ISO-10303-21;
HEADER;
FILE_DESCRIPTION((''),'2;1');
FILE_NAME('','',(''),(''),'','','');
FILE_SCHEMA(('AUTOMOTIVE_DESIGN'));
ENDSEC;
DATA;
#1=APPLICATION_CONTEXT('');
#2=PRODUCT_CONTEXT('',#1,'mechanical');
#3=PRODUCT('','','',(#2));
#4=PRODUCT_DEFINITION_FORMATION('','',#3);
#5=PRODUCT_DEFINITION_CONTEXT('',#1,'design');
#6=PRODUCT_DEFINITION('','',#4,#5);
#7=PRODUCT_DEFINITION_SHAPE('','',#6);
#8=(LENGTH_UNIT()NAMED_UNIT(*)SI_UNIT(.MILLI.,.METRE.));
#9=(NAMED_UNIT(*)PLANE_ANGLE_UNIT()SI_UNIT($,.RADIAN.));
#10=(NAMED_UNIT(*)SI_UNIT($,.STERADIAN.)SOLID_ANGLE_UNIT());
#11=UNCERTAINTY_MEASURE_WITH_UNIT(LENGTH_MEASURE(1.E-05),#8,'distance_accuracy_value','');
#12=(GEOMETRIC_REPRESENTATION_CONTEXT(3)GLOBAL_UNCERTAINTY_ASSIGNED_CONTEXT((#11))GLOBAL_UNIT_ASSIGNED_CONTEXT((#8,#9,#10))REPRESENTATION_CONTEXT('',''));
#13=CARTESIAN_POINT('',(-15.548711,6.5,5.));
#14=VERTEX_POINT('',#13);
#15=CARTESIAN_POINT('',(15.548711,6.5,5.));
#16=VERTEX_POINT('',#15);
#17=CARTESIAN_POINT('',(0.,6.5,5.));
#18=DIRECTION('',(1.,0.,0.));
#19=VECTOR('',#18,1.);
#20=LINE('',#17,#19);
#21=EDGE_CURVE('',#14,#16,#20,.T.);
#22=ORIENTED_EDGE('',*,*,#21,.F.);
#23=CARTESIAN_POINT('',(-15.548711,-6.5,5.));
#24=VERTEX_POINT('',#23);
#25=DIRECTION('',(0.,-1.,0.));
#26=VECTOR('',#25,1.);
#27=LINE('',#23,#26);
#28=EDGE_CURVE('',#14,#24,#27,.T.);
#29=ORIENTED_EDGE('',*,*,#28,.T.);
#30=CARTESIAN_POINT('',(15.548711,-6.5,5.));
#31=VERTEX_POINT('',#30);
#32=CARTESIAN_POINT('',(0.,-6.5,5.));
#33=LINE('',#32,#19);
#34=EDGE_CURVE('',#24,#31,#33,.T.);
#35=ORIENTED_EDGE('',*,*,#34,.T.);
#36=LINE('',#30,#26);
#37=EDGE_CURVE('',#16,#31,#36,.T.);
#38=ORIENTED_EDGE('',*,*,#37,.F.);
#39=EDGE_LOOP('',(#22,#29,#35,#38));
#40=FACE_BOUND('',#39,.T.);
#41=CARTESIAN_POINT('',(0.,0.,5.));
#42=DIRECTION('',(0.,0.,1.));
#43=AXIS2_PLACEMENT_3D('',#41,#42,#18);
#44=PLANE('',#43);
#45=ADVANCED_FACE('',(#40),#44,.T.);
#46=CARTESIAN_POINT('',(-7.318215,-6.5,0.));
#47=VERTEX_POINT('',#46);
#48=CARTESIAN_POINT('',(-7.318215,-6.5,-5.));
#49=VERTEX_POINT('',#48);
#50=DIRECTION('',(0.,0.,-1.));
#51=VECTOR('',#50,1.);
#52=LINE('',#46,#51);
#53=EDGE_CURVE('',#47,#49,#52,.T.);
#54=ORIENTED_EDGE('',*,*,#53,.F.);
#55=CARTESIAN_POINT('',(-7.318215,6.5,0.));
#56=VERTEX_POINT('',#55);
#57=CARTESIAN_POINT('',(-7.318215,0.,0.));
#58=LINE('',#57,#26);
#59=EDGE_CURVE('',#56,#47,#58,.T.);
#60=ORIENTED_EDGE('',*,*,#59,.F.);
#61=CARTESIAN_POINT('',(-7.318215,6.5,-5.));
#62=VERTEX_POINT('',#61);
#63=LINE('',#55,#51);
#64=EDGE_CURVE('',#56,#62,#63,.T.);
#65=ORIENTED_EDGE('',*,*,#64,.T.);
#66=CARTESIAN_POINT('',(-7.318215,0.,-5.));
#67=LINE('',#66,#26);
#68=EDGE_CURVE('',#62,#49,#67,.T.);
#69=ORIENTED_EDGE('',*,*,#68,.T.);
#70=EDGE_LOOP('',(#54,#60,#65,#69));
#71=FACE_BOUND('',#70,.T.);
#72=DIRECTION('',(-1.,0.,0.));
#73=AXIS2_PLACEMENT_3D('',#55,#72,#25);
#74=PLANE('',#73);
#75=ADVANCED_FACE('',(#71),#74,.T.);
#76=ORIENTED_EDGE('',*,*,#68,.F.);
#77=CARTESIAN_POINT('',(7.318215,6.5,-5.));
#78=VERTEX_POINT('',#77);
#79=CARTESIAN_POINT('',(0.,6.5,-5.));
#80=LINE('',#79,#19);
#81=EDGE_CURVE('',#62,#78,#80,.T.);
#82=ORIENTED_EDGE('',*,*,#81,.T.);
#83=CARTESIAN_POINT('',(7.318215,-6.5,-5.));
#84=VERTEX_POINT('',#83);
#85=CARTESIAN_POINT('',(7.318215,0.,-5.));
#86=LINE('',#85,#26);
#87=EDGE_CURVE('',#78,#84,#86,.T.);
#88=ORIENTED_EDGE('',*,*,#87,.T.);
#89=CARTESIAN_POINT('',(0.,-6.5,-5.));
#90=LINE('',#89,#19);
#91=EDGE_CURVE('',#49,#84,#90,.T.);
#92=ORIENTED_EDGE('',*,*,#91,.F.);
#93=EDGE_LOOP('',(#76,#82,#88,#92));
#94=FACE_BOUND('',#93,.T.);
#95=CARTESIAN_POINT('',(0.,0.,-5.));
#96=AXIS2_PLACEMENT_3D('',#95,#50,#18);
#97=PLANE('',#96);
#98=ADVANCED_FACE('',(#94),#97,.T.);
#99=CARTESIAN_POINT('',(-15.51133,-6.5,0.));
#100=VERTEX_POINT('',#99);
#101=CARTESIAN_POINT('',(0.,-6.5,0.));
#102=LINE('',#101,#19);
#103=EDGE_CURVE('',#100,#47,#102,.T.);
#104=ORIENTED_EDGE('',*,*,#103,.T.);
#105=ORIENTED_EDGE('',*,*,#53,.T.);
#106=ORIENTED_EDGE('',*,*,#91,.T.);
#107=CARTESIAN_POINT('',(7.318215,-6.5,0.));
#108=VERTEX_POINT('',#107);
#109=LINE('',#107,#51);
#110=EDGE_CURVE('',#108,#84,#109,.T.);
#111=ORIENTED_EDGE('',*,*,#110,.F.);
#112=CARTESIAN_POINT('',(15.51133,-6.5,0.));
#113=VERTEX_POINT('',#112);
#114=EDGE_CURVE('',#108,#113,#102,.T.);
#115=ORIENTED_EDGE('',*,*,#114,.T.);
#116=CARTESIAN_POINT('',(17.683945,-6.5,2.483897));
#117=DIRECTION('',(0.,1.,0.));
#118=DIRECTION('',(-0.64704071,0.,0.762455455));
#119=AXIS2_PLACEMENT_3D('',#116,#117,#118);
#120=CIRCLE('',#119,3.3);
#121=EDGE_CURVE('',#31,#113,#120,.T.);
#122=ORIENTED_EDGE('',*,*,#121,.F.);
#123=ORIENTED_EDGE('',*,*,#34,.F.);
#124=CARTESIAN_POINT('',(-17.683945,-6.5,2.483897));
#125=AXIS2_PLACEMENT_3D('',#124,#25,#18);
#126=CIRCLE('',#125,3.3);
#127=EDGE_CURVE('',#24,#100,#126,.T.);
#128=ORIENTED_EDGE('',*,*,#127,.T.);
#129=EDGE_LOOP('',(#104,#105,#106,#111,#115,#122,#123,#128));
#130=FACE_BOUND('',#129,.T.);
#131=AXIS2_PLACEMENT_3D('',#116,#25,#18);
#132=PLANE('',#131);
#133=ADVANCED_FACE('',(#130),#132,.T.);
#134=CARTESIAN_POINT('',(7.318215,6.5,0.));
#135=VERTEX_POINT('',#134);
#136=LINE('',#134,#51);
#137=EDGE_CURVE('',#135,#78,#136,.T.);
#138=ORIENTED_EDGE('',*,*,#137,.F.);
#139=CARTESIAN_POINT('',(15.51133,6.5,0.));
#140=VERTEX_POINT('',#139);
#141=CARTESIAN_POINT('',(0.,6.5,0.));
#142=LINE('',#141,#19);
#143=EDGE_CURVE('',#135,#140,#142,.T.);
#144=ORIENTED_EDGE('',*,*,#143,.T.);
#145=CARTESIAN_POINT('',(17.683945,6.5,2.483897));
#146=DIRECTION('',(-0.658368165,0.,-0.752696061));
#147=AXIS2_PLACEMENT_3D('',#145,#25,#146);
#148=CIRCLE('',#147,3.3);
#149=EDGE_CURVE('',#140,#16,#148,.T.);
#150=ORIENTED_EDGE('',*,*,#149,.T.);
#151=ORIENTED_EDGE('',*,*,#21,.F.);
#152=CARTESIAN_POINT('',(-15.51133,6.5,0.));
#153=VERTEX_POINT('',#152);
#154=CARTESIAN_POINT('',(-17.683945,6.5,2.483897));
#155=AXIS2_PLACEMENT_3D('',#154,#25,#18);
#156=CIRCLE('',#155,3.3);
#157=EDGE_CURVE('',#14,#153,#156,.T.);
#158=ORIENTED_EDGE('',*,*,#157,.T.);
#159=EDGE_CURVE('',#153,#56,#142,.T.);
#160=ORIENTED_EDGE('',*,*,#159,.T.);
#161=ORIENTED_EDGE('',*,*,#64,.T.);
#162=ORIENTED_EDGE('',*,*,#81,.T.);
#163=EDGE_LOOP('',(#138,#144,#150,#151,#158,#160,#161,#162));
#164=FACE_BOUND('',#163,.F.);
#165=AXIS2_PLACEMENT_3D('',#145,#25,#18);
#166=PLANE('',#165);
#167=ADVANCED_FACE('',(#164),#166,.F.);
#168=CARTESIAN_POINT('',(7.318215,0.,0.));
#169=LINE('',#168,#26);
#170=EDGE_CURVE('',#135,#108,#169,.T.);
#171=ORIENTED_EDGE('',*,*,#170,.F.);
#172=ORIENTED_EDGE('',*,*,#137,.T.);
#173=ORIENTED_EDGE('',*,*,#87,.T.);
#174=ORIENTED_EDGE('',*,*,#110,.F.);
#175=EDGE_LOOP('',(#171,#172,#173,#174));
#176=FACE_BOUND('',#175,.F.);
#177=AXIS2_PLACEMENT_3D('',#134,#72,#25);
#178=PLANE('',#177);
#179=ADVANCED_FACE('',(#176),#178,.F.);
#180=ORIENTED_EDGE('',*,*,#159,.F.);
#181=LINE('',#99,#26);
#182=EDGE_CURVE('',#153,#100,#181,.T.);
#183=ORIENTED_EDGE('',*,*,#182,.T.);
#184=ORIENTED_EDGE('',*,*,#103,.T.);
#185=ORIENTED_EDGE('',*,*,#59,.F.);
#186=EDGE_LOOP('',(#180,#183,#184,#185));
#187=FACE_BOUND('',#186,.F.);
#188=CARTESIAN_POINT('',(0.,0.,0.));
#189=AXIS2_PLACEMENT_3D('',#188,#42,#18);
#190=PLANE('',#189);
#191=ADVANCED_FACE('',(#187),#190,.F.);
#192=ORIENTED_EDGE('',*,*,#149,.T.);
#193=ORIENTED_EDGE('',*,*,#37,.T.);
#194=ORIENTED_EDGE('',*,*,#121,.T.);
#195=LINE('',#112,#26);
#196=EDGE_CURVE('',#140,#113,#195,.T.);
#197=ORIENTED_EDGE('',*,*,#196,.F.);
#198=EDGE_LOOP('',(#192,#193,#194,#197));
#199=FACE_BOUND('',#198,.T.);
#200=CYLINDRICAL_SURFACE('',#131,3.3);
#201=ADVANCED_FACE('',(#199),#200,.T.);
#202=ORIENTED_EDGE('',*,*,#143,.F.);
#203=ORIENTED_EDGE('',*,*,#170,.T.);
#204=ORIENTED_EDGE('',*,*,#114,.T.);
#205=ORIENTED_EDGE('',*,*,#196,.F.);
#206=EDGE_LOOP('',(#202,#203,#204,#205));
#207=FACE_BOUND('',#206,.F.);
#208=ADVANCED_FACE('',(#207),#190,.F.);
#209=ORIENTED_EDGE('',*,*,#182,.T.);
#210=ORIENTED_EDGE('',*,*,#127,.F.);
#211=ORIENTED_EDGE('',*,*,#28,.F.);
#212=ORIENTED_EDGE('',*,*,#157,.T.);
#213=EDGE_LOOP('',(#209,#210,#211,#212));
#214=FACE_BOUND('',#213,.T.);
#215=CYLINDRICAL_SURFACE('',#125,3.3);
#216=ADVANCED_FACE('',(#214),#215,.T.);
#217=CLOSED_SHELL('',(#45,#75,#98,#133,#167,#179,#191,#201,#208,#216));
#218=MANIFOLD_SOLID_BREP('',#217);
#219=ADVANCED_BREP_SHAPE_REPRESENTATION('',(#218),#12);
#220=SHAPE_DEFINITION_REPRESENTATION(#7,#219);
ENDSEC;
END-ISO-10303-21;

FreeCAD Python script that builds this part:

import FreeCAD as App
import Part
import Sketcher


def add_polygon(sketch, points):
    """Adds a closed chain of lines whose ends are joined by coincident constraints."""
    first, n = sketch.GeometryCount, len(points)
    for a, b in zip(points, points[1:] + points[:1]):
        sketch.addGeometry(Part.LineSegment(App.Vector(*a, 0), App.Vector(*b, 0)), False)
    for i in range(n):
        sketch.addConstraint(Sketcher.Constraint("Coincident", first + i, 2, first + (i + 1) % n, 1))

doc = App.newDocument("Part")
body = doc.addObject("PartDesign::Body", "Body")

# Sketch on XY plane
sketch1 = body.newObject("Sketcher::SketchObject", "Sketch")
sketch1.AttachmentSupport = (doc.getObject("XY_Plane"), [""])
sketch1.MapMode = "FlatFace"
add_polygon(sketch1, [(-7, -6), (-7, 6), (7, 6), (7, -6)])  # lines 0-3
sketch1.addConstraint([
    Sketcher.Constraint("Vertical", 0),
    Sketcher.Constraint("Horizontal", 1),
    Sketcher.Constraint("Vertical", 2),
    Sketcher.Constraint("Horizontal", 3),
    Sketcher.Constraint("Symmetric", 0, 2, 2, 2, -1, 1),
    Sketcher.Constraint("DistanceY", 0, 1, 0, 2, 13.0),
    Sketcher.Constraint("DistanceX", 1, 1, 1, 2, 14.63643),
])
pad1 = body.newObject("PartDesign::Pad", "Pad")
pad1.Profile = sketch1
pad1.Length = 5
pad1.Reversed = True
body2 = doc.addObject("PartDesign::Body", "Body001")

# Sketch on XY plane
sketch2 = body2.newObject("Sketcher::SketchObject", "Sketch001")
sketch2.AttachmentSupport = (doc.getObject("XY_Plane001"), [""])
sketch2.MapMode = "FlatFace"
add_polygon(sketch2, [(-18, 6), (-18, -6), (18, -6), (18, 6)])  # lines 0-3
sketch2.addConstraint([
    Sketcher.Constraint("Vertical", 0),
    Sketcher.Constraint("Horizontal", 1),
    Sketcher.Constraint("Vertical", 2),
    Sketcher.Constraint("Horizontal", 3),
    Sketcher.Constraint("Symmetric", 0, 2, 2, 2, -1, 1),
    Sketcher.Constraint("DistanceX", 1, 1, 1, 2, 35.0),
    Sketcher.Constraint("DistanceY", 0, 2, 0, 1, 13.0),
])
pad2 = body2.newObject("PartDesign::Pad", "Pad001")
pad2.Profile = sketch2
pad2.Length = 5

# Sketch on XZ plane
sketch3 = body2.newObject("Sketcher::SketchObject", "Sketch002")
sketch3.AttachmentSupport = (doc.getObject("XZ_Plane001"), [""])
sketch3.MapMode = "FlatFace"
sketch3.AttachmentOffset = App.Placement(App.Vector(0, 0, 6.5), App.Rotation())
sketch3.addGeometry([
    Part.Circle(App.Vector(17.7, 2.5, 0), App.Vector(0, 0, 1), 3.3),
    Part.Circle(App.Vector(-17.7, 2.5, 0), App.Vector(0, 0, 1), 3.3),
], False)
sketch3.addConstraint([
    Sketcher.Constraint("Equal", 0, 1),
    Sketcher.Constraint("Symmetric", 0, 3, 1, 3, -2),
    Sketcher.Constraint("Diameter", 0, 6.6),
    Sketcher.Constraint("DistanceX", 1, 3, 0, 3, 35.36789),
    Sketcher.Constraint("DistanceY", -1, 1, 0, 3, 2.483897),
])
pad3 = body2.newObject("PartDesign::Pad", "Pad002")
pad3.Profile = sketch3
pad3.Length = 13
pad3.Reversed = True
doc.recompute()

boolean = body2.newObject("PartDesign::Boolean", "Boolean")
boolean.Type = "Fuse"
boolean.addObjects([body])

doc.recompute()
